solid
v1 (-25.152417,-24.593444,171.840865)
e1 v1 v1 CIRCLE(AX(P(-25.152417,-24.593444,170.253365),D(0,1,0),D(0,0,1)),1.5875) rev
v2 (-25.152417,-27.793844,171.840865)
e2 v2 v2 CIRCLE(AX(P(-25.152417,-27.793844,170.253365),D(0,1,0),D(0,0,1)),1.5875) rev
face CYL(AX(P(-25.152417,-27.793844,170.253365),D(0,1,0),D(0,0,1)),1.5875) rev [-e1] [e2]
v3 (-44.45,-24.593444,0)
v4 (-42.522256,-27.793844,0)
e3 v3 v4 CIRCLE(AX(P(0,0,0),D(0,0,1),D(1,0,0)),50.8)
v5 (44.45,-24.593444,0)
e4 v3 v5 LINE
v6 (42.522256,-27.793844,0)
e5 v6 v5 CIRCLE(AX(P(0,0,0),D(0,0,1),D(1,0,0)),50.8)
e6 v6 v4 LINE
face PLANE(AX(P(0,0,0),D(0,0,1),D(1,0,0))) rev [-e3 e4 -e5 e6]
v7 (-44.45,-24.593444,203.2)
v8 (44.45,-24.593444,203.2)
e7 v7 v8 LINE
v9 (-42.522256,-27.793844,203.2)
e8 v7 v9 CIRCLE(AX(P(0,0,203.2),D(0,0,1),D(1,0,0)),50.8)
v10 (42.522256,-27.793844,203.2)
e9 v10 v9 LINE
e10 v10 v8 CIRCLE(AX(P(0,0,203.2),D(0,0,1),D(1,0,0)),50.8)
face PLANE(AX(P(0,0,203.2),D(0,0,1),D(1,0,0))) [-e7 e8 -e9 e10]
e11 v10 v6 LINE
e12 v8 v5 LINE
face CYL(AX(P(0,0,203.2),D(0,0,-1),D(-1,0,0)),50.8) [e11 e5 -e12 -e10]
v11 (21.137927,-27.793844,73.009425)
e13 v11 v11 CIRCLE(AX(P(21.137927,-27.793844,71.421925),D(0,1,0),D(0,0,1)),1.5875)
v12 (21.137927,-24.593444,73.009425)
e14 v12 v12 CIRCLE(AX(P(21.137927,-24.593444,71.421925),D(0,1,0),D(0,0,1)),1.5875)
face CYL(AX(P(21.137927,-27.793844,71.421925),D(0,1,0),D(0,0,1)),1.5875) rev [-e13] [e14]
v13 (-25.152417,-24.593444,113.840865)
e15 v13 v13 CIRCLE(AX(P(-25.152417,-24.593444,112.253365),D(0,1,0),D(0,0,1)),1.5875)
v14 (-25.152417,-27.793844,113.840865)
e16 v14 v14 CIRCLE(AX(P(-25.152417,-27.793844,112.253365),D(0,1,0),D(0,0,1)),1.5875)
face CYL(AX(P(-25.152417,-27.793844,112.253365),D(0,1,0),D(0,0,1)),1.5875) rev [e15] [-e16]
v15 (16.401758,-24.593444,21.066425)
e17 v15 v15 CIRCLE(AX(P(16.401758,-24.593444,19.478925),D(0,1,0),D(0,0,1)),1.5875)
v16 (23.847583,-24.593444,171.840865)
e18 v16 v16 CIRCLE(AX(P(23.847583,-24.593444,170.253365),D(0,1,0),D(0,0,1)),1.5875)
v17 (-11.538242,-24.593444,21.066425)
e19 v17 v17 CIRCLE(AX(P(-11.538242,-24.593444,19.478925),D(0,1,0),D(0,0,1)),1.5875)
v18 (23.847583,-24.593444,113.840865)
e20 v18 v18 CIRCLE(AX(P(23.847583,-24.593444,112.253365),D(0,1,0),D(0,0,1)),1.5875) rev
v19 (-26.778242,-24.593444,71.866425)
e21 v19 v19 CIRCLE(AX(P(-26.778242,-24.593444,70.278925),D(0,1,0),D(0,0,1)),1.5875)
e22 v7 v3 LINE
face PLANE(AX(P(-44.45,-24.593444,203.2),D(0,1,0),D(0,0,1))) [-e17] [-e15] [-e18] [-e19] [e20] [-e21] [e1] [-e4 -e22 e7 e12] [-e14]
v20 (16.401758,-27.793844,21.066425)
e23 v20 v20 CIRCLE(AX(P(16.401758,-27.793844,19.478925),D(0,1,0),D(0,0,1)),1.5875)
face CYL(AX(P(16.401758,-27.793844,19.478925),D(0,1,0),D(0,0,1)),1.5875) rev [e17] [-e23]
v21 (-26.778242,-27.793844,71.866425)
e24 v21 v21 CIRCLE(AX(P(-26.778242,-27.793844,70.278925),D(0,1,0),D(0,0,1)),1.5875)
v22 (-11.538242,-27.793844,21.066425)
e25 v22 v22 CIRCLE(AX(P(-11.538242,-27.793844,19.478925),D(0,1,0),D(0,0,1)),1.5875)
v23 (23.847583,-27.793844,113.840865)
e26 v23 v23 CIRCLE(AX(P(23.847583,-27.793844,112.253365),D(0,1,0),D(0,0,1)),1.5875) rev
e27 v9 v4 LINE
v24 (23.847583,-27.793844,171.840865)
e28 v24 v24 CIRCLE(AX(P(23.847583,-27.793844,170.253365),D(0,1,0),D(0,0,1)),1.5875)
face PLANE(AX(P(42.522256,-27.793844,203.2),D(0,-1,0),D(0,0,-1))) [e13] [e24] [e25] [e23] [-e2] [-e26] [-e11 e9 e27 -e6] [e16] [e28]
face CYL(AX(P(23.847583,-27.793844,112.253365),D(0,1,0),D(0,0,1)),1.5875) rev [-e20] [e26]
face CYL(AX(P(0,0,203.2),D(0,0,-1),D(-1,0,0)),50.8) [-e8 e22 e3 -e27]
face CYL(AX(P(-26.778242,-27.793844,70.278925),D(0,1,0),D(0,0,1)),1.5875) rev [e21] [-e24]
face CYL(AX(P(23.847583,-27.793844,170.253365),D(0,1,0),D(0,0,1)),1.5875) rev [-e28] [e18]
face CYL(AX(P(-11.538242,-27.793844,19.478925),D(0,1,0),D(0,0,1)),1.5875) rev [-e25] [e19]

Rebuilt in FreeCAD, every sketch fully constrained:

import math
import FreeCAD as App
import Part
import Sketcher

V = App.Vector
Q = App.Units.Quantity

doc = App.newDocument("Part")
body = doc.addObject("PartDesign::Body", "Body")

sketch1 = body.newObject("Sketcher::SketchObject", "Sketch")
sketch1.AttachmentSupport = (doc.getObject("XY_Plane"), [""])
sketch1.MapMode = "FlatFace"
sketch1.addGeometry([
    Part.LineSegment(V(44.5, -24.6, 0), V(-44.5, -24.6, 0)),
    Part.ArcOfCircle(Part.Circle(V(0, 0, 0), V(0, 0, 1), 50.8), math.radians(-151.04), math.radians(-146.83)),
    Part.LineSegment(V(-42.5, -27.8, 0), V(42.5, -27.8, 0)),
    Part.ArcOfCircle(Part.Circle(V(0, 0, 0), V(0, 0, 1), 50.8), math.radians(-33.17), math.radians(-28.96)),
], False)
sketch1.addConstraint([
    Sketcher.Constraint("Coincident", 0, 2, 1, 1),
    Sketcher.Constraint("Coincident", 1, 2, 2, 1),
    Sketcher.Constraint("Coincident", 2, 2, 3, 1),
    Sketcher.Constraint("Coincident", 3, 2, 0, 1),
    Sketcher.Constraint("Horizontal", 0),
    Sketcher.Constraint("Horizontal", 2),
    Sketcher.Constraint("Coincident", 1, 3, -1, 1),
    Sketcher.Constraint("Coincident", 3, 3, -1, 1),
    Sketcher.Constraint("Equal", 1, 3),
    Sketcher.Constraint("Radius", 1, Q("2 in")),
    Sketcher.Constraint("DistanceX", 0, 2, 0, 1, Q("3.5 in")),
    Sketcher.Constraint("DistanceY", 1, 2, 0, 2, Q("0.126 in")),
])
pad1 = body.newObject("PartDesign::Pad", "Pad")
pad1.Profile = sketch1
pad1.Length = Q("8 in")

sketch2 = body.newObject("Sketcher::SketchObject", "Sketch001")
sketch2.AttachmentSupport = (doc.getObject("XZ_Plane"), [""])
sketch2.MapMode = "FlatFace"
sketch2.AttachmentOffset = App.Placement(V(0, 0, 24.593444), App.Rotation())
sketch2.addGeometry([
    Part.Circle(V(16.4, 19.5, 0), V(0, 0, 1), 1.6),
    Part.Circle(V(-26.8, 70.3, 0), V(0, 0, 1), 1.6),
    Part.Circle(V(21.1, 71.4, 0), V(0, 0, 1), 1.6),
    Part.Circle(V(-11.5, 19.5, 0), V(0, 0, 1), 1.6),
], False)
sketch2.addConstraint([
    Sketcher.Constraint("Equal", 0, 1),
    Sketcher.Constraint("Equal", 1, 2),
    Sketcher.Constraint("Equal", 2, 3),
    Sketcher.Constraint("Horizontal", 0, 3, 3, 3),
    Sketcher.Constraint("Diameter", 0, Q("0.125 in")),
    Sketcher.Constraint("DistanceY", 0, 3, 1, 3, Q("2 in")),
    Sketcher.Constraint("DistanceX", 1, 3, 0, 3, Q("1.7 in")),
    Sketcher.Constraint("DistanceX", 3, 3, 0, 3, Q("1.1 in")),
    Sketcher.Constraint("DistanceY", 1, 3, 2, 3, Q("0.045 in")),
    Sketcher.Constraint("DistanceX", 1, 3, 2, 3, Q("47.916169 mm")),
    Sketcher.Constraint("DistanceX", -1, 1, 0, 3, Q("16.401758 mm")),
    Sketcher.Constraint("DistanceY", -1, 1, 0, 3, Q("19.478925 mm")),
])
pocket1 = body.newObject("PartDesign::Pocket", "Pocket")
pocket1.Profile = sketch2
pocket1.Type = "ThroughAll"
pocket1.Reversed = True

sketch3 = body.newObject("Sketcher::SketchObject", "Sketch002")
sketch3.AttachmentSupport = (doc.getObject("XZ_Plane"), [""])
sketch3.MapMode = "FlatFace"
sketch3.AttachmentOffset = App.Placement(V(0, 0, 24.593444), App.Rotation())
sketch3.addGeometry([
    Part.Circle(V(-25.2, 170.3, 0), V(0, 0, 1), 1.6),
    Part.Circle(V(23.8, 170.3, 0), V(0, 0, 1), 1.6),
    Part.Circle(V(23.8, 112.3, 0), V(0, 0, 1), 1.6),
    Part.Circle(V(-25.2, 112.3, 0), V(0, 0, 1), 1.6),
], False)
sketch3.addConstraint([
    Sketcher.Constraint("Equal", 0, 1),
    Sketcher.Constraint("Equal", 1, 2),
    Sketcher.Constraint("Equal", 2, 3),
    Sketcher.Constraint("Horizontal", 0, 3, 1, 3),
    Sketcher.Constraint("Horizontal", 2, 3, 3, 3),
    Sketcher.Constraint("Vertical", 1, 3, 2, 3),
    Sketcher.Constraint("Vertical", 0, 3, 3, 3),
    Sketcher.Constraint("Diameter", 0, Q("0.125 in")),
    Sketcher.Constraint("DistanceX", 0, 3, 1, 3, Q("49 mm")),
    Sketcher.Constraint("DistanceY", 2, 3, 1, 3, Q("58 mm")),
    Sketcher.Constraint("DistanceX", 0, 3, -1, 1, Q("25.152417 mm")),
    Sketcher.Constraint("DistanceY", -1, 1, 0, 3, Q("170.253365 mm")),
])
pocket2 = body.newObject("PartDesign::Pocket", "Pocket001")
pocket2.Profile = sketch3
pocket2.Type = "ThroughAll"
pocket2.Reversed = True

doc.recompute()
